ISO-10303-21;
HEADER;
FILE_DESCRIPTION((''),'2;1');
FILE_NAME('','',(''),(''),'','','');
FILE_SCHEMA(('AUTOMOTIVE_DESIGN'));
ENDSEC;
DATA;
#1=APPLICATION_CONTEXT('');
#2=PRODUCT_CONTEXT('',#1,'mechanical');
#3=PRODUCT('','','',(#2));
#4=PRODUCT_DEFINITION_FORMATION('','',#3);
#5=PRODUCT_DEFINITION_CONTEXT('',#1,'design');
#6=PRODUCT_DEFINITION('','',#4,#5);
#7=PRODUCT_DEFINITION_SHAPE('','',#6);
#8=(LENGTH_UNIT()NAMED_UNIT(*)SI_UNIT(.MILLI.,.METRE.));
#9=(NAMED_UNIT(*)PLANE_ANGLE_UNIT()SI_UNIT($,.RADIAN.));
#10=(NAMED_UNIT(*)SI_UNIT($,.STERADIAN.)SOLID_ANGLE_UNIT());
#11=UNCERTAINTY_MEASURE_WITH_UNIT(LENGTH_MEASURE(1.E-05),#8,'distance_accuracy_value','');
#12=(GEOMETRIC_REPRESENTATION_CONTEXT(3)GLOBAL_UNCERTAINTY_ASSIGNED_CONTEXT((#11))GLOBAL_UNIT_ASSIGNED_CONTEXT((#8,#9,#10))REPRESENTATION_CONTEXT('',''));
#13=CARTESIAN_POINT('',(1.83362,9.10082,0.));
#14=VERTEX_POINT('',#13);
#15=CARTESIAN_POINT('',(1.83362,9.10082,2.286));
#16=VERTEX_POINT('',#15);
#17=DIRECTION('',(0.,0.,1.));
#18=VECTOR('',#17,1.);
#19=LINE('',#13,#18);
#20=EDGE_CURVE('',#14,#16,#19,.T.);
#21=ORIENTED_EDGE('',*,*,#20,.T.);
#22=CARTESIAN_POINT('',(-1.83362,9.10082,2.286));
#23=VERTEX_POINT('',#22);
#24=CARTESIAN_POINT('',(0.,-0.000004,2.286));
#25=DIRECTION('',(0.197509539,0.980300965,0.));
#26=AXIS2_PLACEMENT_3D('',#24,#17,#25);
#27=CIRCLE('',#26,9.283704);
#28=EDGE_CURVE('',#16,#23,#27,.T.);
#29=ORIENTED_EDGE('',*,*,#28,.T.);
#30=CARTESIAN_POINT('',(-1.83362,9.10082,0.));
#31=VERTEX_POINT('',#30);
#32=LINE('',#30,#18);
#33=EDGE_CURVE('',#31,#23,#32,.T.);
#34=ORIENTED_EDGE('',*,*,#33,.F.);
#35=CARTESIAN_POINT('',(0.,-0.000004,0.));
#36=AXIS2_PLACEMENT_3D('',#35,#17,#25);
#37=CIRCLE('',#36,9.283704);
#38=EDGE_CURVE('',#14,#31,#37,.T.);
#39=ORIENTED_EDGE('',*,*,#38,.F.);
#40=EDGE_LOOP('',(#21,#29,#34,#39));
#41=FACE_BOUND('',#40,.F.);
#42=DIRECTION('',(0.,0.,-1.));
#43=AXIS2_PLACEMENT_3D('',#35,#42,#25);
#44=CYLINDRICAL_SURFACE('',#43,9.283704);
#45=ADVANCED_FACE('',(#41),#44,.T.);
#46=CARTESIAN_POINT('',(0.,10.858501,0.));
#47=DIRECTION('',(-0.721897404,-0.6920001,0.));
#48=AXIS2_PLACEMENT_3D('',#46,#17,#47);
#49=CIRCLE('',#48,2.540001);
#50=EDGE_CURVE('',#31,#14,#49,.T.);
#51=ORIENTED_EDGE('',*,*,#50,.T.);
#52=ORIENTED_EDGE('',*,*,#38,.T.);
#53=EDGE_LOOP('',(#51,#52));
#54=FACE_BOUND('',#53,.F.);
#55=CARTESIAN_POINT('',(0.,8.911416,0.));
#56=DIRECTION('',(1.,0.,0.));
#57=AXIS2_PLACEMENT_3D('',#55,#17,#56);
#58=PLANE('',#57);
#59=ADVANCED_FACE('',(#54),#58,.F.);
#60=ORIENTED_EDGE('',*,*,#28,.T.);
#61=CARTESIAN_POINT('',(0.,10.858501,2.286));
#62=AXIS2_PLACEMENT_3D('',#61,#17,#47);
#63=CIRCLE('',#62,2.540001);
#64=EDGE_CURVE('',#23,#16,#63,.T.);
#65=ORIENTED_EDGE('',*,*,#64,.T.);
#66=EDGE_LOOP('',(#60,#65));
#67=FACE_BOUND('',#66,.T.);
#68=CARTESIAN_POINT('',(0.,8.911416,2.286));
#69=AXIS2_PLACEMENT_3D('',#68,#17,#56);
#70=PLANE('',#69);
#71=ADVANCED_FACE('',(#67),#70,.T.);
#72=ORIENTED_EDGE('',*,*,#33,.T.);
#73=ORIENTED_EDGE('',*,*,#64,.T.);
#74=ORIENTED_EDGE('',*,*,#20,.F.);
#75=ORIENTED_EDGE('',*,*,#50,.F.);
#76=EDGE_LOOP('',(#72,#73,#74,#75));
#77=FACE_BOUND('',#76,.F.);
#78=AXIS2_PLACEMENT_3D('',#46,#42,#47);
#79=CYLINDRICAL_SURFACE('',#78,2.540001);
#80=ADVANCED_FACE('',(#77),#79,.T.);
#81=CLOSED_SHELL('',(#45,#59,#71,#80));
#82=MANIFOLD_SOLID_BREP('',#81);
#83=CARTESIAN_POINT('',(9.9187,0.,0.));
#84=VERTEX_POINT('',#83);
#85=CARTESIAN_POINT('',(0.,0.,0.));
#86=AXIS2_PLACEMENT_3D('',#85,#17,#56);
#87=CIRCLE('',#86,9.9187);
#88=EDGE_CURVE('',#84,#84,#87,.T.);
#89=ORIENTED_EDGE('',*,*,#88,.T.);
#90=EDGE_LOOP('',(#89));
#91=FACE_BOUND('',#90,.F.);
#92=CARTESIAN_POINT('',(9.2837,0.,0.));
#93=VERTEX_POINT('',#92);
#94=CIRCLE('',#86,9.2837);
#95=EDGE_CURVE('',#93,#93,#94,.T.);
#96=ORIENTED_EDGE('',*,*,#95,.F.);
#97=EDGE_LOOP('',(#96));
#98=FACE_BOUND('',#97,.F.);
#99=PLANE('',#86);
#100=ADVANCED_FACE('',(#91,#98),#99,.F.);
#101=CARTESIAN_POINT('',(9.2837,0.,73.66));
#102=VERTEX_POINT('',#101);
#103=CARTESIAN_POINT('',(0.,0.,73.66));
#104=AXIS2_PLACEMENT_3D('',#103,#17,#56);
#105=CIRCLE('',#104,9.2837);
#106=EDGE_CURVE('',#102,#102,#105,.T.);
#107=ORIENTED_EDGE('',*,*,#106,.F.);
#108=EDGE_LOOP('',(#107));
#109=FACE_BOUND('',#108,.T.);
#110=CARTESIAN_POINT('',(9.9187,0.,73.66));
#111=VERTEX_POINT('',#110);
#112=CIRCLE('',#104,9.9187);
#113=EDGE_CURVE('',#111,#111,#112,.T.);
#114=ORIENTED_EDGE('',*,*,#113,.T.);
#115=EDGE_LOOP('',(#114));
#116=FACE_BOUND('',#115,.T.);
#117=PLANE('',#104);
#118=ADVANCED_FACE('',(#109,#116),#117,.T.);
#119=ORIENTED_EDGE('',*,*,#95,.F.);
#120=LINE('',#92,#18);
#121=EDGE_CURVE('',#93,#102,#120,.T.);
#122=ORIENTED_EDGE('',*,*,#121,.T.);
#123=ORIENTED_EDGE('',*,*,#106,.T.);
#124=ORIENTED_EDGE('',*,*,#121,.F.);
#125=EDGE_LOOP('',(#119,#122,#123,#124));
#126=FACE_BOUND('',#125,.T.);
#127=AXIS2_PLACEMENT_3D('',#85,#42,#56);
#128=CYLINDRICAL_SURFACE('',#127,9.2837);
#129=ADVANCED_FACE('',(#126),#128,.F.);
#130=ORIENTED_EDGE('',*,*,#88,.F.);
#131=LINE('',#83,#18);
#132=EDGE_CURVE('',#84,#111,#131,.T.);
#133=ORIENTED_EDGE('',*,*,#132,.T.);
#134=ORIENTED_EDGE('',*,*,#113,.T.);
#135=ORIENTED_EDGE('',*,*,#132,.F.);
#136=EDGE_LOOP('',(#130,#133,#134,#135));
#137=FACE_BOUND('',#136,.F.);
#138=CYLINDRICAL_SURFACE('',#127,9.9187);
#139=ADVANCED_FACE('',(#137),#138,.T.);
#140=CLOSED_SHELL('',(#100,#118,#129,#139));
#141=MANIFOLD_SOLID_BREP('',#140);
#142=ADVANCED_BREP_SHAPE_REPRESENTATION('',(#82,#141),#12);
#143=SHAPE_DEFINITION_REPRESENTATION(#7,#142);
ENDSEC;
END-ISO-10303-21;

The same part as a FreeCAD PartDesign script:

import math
import FreeCAD as App
import Part
import Sketcher
Q = App.Units.Quantity

doc = App.newDocument("Part")
body = doc.addObject("PartDesign::Body", "Body")

# Sketch on XY plane
sketch1 = body.newObject("Sketcher::SketchObject", "Sketch")
sketch1.AttachmentSupport = (doc.getObject("XY_Plane"), [""])
sketch1.MapMode = "FlatFace"
sketch1.addGeometry(Part.Circle(App.Vector(0, 0, 0), App.Vector(0, 0, 1), 9.9187), False)
sketch1.addGeometry(Part.Circle(App.Vector(0, 0, 0), App.Vector(0, 0, 1), 9.2837), False)
sketch1.addConstraint(Sketcher.Constraint("Coincident", 0, 3, -1, 1))
sketch1.addConstraint(Sketcher.Constraint("Coincident", 1, 3, -1, 1))
sketch1.addConstraint(Sketcher.Constraint("Diameter", 0, Q("0.781 in")))
sketch1.addConstraint(Sketcher.Constraint("Diameter", 1, Q("0.731 in")))
pad1 = body.newObject("PartDesign::Pad", "Pad")
pad1.Profile = sketch1
pad1.Length = Q("2.9 in")
body2 = doc.addObject("PartDesign::Body", "Body001")

# Sketch on XY plane
sketch2 = body2.newObject("Sketcher::SketchObject", "Sketch001")
sketch2.AttachmentSupport = (doc.getObject("XY_Plane001"), [""])
sketch2.MapMode = "FlatFace"
sketch2.addGeometry(Part.ArcOfCircle(Part.Circle(App.Vector(0, 10.858501, 0), App.Vector(0, 0, 1), 2.540001), math.radians(-136.211357), math.radians(-43.788643)), False)
sketch2.addGeometry(Part.ArcOfCircle(Part.Circle(App.Vector(0, -0.000004, 0), App.Vector(0, 0, 1), 9.283704), math.radians(78.608639), math.radians(101.391361)), False)
sketch2.addConstraint(Sketcher.Constraint("Coincident", 0, 1, 1, 2))
sketch2.addConstraint(Sketcher.Constraint("Coincident", 1, 1, 0, 2))
sketch2.addConstraint(Sketcher.Constraint("Coincident", 1, 3, -1, 1))
sketch2.addConstraint(Sketcher.Constraint("PointOnObject", 0, 3, -2))
sketch2.addConstraint(Sketcher.Constraint("Radius", 0, Q("0.1 in")))
sketch2.addConstraint(Sketcher.Constraint("Radius", 1, Q("0.3655001 in")))
sketch2.addConstraint(Sketcher.Constraint("DistanceY", -1, 1, 0, 3, Q("0.4275 in")))
pad2 = body2.newObject("PartDesign::Pad", "Pad001")
pad2.Profile = sketch2
pad2.Length = Q("0.09 in")

doc.recompute()
